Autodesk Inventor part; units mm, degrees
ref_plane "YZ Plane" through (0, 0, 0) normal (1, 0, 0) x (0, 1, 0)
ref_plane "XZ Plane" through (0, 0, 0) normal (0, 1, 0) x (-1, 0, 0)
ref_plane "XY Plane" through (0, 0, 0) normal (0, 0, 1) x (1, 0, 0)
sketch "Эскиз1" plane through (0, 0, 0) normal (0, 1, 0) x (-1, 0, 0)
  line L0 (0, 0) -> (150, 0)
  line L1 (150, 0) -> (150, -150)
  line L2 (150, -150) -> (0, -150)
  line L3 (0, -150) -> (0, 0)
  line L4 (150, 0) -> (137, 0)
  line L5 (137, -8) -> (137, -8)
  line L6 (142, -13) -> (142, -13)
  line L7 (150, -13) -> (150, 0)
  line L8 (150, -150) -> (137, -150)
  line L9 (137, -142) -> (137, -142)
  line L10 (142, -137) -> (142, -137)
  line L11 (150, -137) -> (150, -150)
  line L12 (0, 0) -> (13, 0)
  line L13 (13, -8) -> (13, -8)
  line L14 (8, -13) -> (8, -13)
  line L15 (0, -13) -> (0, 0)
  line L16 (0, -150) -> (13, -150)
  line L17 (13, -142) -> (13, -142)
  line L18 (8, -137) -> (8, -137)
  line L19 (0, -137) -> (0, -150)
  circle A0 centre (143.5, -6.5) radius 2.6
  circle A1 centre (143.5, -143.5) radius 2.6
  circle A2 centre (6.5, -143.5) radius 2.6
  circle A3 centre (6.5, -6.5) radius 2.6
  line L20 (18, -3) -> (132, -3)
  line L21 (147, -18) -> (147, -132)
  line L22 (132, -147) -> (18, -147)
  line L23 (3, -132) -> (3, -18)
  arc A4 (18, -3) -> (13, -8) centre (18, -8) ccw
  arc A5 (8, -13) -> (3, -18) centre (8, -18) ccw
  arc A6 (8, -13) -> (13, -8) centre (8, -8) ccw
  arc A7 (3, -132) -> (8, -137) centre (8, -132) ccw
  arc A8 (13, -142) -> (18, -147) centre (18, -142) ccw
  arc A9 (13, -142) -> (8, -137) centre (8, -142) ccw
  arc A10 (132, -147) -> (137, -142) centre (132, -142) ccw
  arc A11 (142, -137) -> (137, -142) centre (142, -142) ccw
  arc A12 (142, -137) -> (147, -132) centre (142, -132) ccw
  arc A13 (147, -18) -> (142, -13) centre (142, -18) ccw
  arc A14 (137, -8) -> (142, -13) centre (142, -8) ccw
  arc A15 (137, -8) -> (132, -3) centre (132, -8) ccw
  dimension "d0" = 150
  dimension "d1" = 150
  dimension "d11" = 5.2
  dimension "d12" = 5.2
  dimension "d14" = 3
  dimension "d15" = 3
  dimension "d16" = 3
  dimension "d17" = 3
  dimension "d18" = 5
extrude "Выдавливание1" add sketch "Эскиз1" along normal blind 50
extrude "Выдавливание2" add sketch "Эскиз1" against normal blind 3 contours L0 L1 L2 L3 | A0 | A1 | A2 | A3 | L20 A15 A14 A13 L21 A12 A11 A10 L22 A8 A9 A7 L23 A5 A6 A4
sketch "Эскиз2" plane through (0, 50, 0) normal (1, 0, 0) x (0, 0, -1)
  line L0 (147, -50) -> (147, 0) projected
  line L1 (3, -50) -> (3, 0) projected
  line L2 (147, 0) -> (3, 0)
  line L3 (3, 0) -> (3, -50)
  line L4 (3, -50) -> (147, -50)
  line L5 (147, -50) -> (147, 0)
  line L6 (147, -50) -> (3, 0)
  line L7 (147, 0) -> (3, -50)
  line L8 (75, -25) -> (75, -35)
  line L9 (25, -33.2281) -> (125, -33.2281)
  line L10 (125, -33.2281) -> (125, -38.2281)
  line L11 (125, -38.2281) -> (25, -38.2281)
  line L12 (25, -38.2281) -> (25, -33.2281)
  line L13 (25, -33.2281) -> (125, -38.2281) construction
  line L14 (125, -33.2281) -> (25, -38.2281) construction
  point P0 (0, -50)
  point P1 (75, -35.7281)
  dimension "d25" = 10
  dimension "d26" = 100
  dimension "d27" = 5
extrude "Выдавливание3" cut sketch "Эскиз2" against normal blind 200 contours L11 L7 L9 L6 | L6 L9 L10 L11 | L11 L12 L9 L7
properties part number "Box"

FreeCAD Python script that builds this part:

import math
import FreeCAD as App
import Part
import Sketcher

V = App.Vector


def add_polygon(sketch, points):
    """Adds a closed chain of lines whose ends are joined by coincident constraints."""
    first, n = sketch.GeometryCount, len(points)
    for a, b in zip(points, points[1:] + points[:1]):
        sketch.addGeometry(Part.LineSegment(App.Vector(*a, 0), App.Vector(*b, 0)), False)
    for i in range(n):
        sketch.addConstraint(Sketcher.Constraint("Coincident", first + i, 2, first + (i + 1) % n, 1))

doc = App.newDocument("Part")
body = doc.addObject("PartDesign::Body", "Body")

sketch1 = body.newObject("Sketcher::SketchObject", "Sketch")
sketch1.AttachmentSupport = (doc.getObject("XZ_Plane"), [""])
sketch1.MapMode = "FlatFace"
add_polygon(sketch1, [(-150, 0), (0, 0), (0, -150), (-150, -150)])
sketch1.addGeometry(Part.Circle(V(-6.5, -143.5, 0), V(0, 0, 1), 2.6), False)
sketch1.addGeometry(Part.Circle(V(-143.5, -143.5, 0), V(0, 0, 1), 2.6), False)
sketch1.addGeometry(Part.Circle(V(-6.5, -6.5, 0), V(0, 0, 1), 2.6), False)
sketch1.addGeometry(Part.ArcOfCircle(Part.Circle(V(-18, -8, 0), V(0, 0, 1), 5), math.radians(0), math.radians(90)), False)
sketch1.addGeometry(Part.LineSegment(V(-18, -3, 0), V(-132, -3, 0)), False)
sketch1.addGeometry(Part.ArcOfCircle(Part.Circle(V(-132, -8, 0), V(0, 0, 1), 5), math.radians(90), math.radians(180)), False)
sketch1.addGeometry(Part.ArcOfCircle(Part.Circle(V(-142, -8, 0), V(0, 0, 1), 5), math.radians(-90), math.radians(0)), False)
sketch1.addGeometry(Part.ArcOfCircle(Part.Circle(V(-142, -18, 0), V(0, 0, 1), 5), math.radians(90), math.radians(180)), False)
sketch1.addGeometry(Part.LineSegment(V(-147, -18, 0), V(-147, -132, 0)), False)
sketch1.addGeometry(Part.ArcOfCircle(Part.Circle(V(-142, -132, 0), V(0, 0, 1), 5), math.radians(180), math.radians(270)), False)
sketch1.addGeometry(Part.ArcOfCircle(Part.Circle(V(-142, -142, 0), V(0, 0, 1), 5), math.radians(0), math.radians(90)), False)
sketch1.addGeometry(Part.ArcOfCircle(Part.Circle(V(-132, -142, 0), V(0, 0, 1), 5), math.radians(180), math.radians(270)), False)
sketch1.addGeometry(Part.LineSegment(V(-132, -147, 0), V(-18, -147, 0)), False)
sketch1.addGeometry(Part.ArcOfCircle(Part.Circle(V(-18, -142, 0), V(0, 0, 1), 5), math.radians(-90), math.radians(0)), False)
sketch1.addGeometry(Part.ArcOfCircle(Part.Circle(V(-8, -142, 0), V(0, 0, 1), 5), math.radians(90), math.radians(180)), False)
sketch1.addGeometry(Part.ArcOfCircle(Part.Circle(V(-8, -132, 0), V(0, 0, 1), 5), math.radians(-90), math.radians(0)), False)
sketch1.addGeometry(Part.LineSegment(V(-3, -132, 0), V(-3, -18, 0)), False)
sketch1.addGeometry(Part.ArcOfCircle(Part.Circle(V(-8, -18, 0), V(0, 0, 1), 5), math.radians(0), math.radians(90)), False)
sketch1.addGeometry(Part.ArcOfCircle(Part.Circle(V(-8, -8, 0), V(0, 0, 1), 5), math.radians(180), math.radians(270)), False)
sketch1.addGeometry(Part.Circle(V(-143.5, -6.5, 0), V(0, 0, 1), 2.6), False)
sketch1.addConstraint([
    Sketcher.Constraint("Tangent", 7, 2, 8, 1),
    Sketcher.Constraint("Tangent", 8, 2, 9, 1),
    Sketcher.Constraint("Tangent", 9, 2, 10, 2),
    Sketcher.Constraint("Tangent", 10, 1, 11, 1),
    Sketcher.Constraint("Tangent", 11, 2, 12, 1),
    Sketcher.Constraint("Tangent", 12, 2, 13, 1),
    Sketcher.Constraint("Tangent", 13, 2, 14, 2),
    Sketcher.Constraint("Tangent", 14, 1, 15, 1),
    Sketcher.Constraint("Tangent", 15, 2, 16, 1),
    Sketcher.Constraint("Tangent", 16, 2, 17, 1),
    Sketcher.Constraint("Tangent", 17, 2, 18, 2),
    Sketcher.Constraint("Tangent", 18, 1, 19, 1),
    Sketcher.Constraint("Tangent", 19, 2, 20, 1),
    Sketcher.Constraint("Tangent", 20, 2, 21, 1),
    Sketcher.Constraint("Tangent", 21, 2, 22, 2),
    Sketcher.Constraint("Tangent", 22, 1, 7, 1),
    Sketcher.Constraint("Horizontal", 0),
    Sketcher.Constraint("Vertical", 1),
    Sketcher.Constraint("Horizontal", 2),
    Sketcher.Constraint("Vertical", 3),
    Sketcher.Constraint("Horizontal", 8),
    Sketcher.Constraint("Vertical", 12),
    Sketcher.Constraint("Horizontal", 16),
    Sketcher.Constraint("Vertical", 20),
    Sketcher.Constraint("Coincident", 0, 2, -1, 1),
    Sketcher.Constraint("Equal", 4, 5),
    Sketcher.Constraint("Equal", 5, 6),
    Sketcher.Constraint("Equal", 7, 9),
    Sketcher.Constraint("Equal", 9, 10),
    Sketcher.Constraint("Equal", 10, 11),
    Sketcher.Constraint("Equal", 11, 13),
    Sketcher.Constraint("Equal", 13, 14),
    Sketcher.Constraint("Equal", 14, 15),
    Sketcher.Constraint("Equal", 15, 17),
    Sketcher.Constraint("Equal", 17, 18),
    Sketcher.Constraint("Equal", 18, 19),
    Sketcher.Constraint("Equal", 19, 21),
    Sketcher.Constraint("Equal", 21, 22),
    Sketcher.Constraint("Equal", 6, 23),
    Sketcher.Constraint("Horizontal", 4, 3, 5, 3),
    Sketcher.Constraint("Horizontal", 9, 3, 10, 3),
    Sketcher.Constraint("Horizontal", 14, 3, 15, 3),
    Sketcher.Constraint("Horizontal", 17, 3, 18, 3),
    Sketcher.Constraint("Horizontal", 11, 3, 21, 3),
    Sketcher.Constraint("Horizontal", 6, 3, 23, 3),
    Sketcher.Constraint("Vertical", 4, 3, 6, 3),
    Sketcher.Constraint("Vertical", 10, 3, 11, 3),
    Sketcher.Constraint("Vertical", 13, 3, 14, 3),
    Sketcher.Constraint("Vertical", 7, 3, 17, 3),
    Sketcher.Constraint("Vertical", 18, 3, 19, 3),
    Sketcher.Constraint("Vertical", 5, 3, 23, 3),
    Sketcher.Constraint("Equal", 2, 1),
    Sketcher.Constraint("Equal", 16, 12),
    Sketcher.Constraint("Radius", 7, 5.0),
    Sketcher.Constraint("Diameter", 4, 5.2),
    Sketcher.Constraint("DistanceX", 0, 1, 0, 2, 150.0),
    Sketcher.Constraint("DistanceY", 7, 2, -1, 1, 3.0),
    Sketcher.Constraint("DistanceX", 19, 2, -1, 1, 3.0),
    Sketcher.Constraint("DistanceX", 2, 2, 12, 2, 3.0),
    Sketcher.Constraint("DistanceX", 5, 3, 4, 3, 137.0),
    Sketcher.Constraint("DistanceY", 4, 3, 6, 3, 137.0),
    Sketcher.Constraint("DistanceX", 4, 3, -1, 1, 6.5),
    Sketcher.Constraint("DistanceY", 4, 3, -1, 1, 143.5),
])
pad1 = body.newObject("PartDesign::Pad", "Pad")
pad1.Profile = sketch1
pad1.Length = 50
pad1.Reversed = True

sketch2 = body.newObject("Sketcher::SketchObject", "Sketch001")
sketch2.AttachmentSupport = (doc.getObject("XZ_Plane"), [""])
sketch2.MapMode = "FlatFace"
add_polygon(sketch2, [(0, 0), (0, -150), (-150, -150), (-150, 0)])
sketch2.addConstraint([
    Sketcher.Constraint("Vertical", 0),
    Sketcher.Constraint("Horizontal", 1),
    Sketcher.Constraint("Vertical", 2),
    Sketcher.Constraint("Horizontal", 3),
    Sketcher.Constraint("Coincident", 3, 2, -1, 1),
    Sketcher.Constraint("Equal", 3, 0),
    Sketcher.Constraint("DistanceX", 1, 2, 1, 1, 150.0),
])
pad2 = body.newObject("PartDesign::Pad", "Pad001")
pad2.Profile = sketch2
pad2.Length = 3

sketch3 = body.newObject("Sketcher::SketchObject", "Sketch002")
sketch3.AttachmentSupport = (doc.getObject("YZ_Plane"), [""])
sketch3.MapMode = "FlatFace"
add_polygon(sketch3, [(11.7719, -125), (16.7719, -125), (16.7719, -25), (11.7719, -25)])
sketch3.addConstraint([
    Sketcher.Constraint("Horizontal", 0),
    Sketcher.Constraint("Vertical", 1),
    Sketcher.Constraint("Horizontal", 2),
    Sketcher.Constraint("Vertical", 3),
    Sketcher.Constraint("DistanceX", 0, 1, 0, 2, 5.0),
    Sketcher.Constraint("DistanceY", 1, 1, 1, 2, 100.0),
    Sketcher.Constraint("DistanceY", 0, 2, -1, 1, 125.0),
    Sketcher.Constraint("DistanceX", -1, 1, 0, 2, 16.772),
])
pocket1 = body.newObject("PartDesign::Pocket", "Pocket")
pocket1.Profile = sketch3
pocket1.Length = 200

doc.recompute()
